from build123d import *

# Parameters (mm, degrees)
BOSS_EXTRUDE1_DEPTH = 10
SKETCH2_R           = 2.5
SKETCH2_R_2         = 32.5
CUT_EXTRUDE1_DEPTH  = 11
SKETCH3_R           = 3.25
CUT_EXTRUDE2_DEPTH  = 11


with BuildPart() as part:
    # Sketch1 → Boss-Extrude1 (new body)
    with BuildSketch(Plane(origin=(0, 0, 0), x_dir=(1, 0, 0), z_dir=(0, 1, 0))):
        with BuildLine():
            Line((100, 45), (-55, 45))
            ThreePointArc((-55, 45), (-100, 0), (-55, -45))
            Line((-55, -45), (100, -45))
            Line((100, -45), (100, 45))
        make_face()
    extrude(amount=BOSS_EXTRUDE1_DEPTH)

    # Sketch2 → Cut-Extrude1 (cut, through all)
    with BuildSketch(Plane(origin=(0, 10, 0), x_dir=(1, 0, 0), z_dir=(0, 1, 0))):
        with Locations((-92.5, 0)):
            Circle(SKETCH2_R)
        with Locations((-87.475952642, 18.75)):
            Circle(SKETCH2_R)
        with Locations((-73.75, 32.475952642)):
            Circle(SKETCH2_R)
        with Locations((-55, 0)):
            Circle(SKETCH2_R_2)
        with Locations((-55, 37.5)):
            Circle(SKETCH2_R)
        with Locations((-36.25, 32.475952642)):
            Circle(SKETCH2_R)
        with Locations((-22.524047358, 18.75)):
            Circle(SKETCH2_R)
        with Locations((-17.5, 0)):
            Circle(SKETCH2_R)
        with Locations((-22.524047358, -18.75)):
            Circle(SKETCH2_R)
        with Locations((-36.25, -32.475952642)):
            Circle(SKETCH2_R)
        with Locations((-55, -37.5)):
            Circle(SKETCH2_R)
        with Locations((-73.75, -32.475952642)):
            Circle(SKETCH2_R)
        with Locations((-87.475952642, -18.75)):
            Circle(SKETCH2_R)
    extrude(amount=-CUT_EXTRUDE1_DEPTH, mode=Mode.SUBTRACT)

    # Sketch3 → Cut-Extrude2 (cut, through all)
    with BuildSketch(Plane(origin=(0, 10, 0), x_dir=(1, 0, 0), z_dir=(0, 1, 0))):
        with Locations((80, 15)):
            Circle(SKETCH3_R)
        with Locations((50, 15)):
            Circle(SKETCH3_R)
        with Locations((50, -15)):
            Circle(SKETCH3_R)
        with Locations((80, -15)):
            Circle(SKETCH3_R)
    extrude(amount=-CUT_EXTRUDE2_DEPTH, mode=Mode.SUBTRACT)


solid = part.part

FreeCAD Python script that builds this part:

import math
import FreeCAD as App
import Part
import Sketcher
Q = App.Units.Quantity

doc = App.newDocument("Part")
body = doc.addObject("PartDesign::Body", "Body")

sketch1 = body.newObject("Sketcher::SketchObject", "Sketch")
sketch1.AttachmentSupport = (doc.getObject("XZ_Plane"), [""])
sketch1.MapMode = "FlatFace"
sketch1.addGeometry([
    Part.LineSegment(App.Vector(100, -45, 0), App.Vector(-55, -45, 0)),
    Part.ArcOfCircle(Part.Circle(App.Vector(-55, 0, 0), App.Vector(0, 0, 1), 45), math.radians(90), math.radians(270)),
    Part.LineSegment(App.Vector(-55, 45, 0), App.Vector(100, 45, 0)),
    Part.LineSegment(App.Vector(100, 45, 0), App.Vector(100, -45, 0)),
], False)
sketch1.addConstraint([
    Sketcher.Constraint("Tangent", 0, 2, 1, 2),
    Sketcher.Constraint("Tangent", 1, 1, 2, 1),
    Sketcher.Constraint("Coincident", 2, 2, 3, 1),
    Sketcher.Constraint("Coincident", 3, 2, 0, 1),
    Sketcher.Constraint("Horizontal", 0),
    Sketcher.Constraint("Horizontal", 2),
    Sketcher.Constraint("Vertical", 3),
    Sketcher.Constraint("PointOnObject", 1, 3, -1),
    Sketcher.Constraint("Radius", 1, Q("45 mm")),
    Sketcher.Constraint("DistanceX", 0, 2, 0, 1, Q("155 mm")),
    Sketcher.Constraint("DistanceX", 1, 3, -1, 1, Q("55 mm")),
])
pad1 = body.newObject("PartDesign::Pad", "Pad")
pad1.Profile = sketch1
pad1.Length = 10
pad1.Reversed = True

sketch2 = body.newObject("Sketcher::SketchObject", "Sketch001")
sketch2.AttachmentSupport = (doc.getObject("XZ_Plane"), [""])
sketch2.MapMode = "FlatFace"
sketch2.AttachmentOffset = App.Placement(App.Vector(0, 0, -10), App.Rotation())
sketch2.addGeometry([
    Part.Circle(App.Vector(-92.5, 0, 0), App.Vector(0, 0, 1), 2.5),
    Part.Circle(App.Vector(-87.475953, -18.75, 0), App.Vector(0, 0, 1), 2.5),
    Part.Circle(App.Vector(-73.75, -32.475953, 0), App.Vector(0, 0, 1), 2.5),
    Part.Circle(App.Vector(-55, 0, 0), App.Vector(0, 0, 1), 32.5),
    Part.Circle(App.Vector(-55, -37.5, 0), App.Vector(0, 0, 1), 2.5),
    Part.Circle(App.Vector(-36.25, -32.475953, 0), App.Vector(0, 0, 1), 2.5),
    Part.Circle(App.Vector(-22.524047, -18.75, 0), App.Vector(0, 0, 1), 2.5),
    Part.Circle(App.Vector(-17.5, 0, 0), App.Vector(0, 0, 1), 2.5),
    Part.Circle(App.Vector(-22.524047, 18.75, 0), App.Vector(0, 0, 1), 2.5),
    Part.Circle(App.Vector(-36.25, 32.475953, 0), App.Vector(0, 0, 1), 2.5),
    Part.Circle(App.Vector(-55, 37.5, 0), App.Vector(0, 0, 1), 2.5),
    Part.Circle(App.Vector(-73.75, 32.475953, 0), App.Vector(0, 0, 1), 2.5),
    Part.Circle(App.Vector(-87.475953, 18.75, 0), App.Vector(0, 0, 1), 2.5),
], False)
sketch2.addConstraint([
    Sketcher.Constraint("Equal", 0, 1),
    Sketcher.Constraint("Equal", 1, 2),
    Sketcher.Constraint("Equal", 2, 4),
    Sketcher.Constraint("Equal", 4, 5),
    Sketcher.Constraint("Equal", 5, 6),
    Sketcher.Constraint("Equal", 6, 7),
    Sketcher.Constraint("Equal", 7, 8),
    Sketcher.Constraint("Equal", 8, 9),
    Sketcher.Constraint("Equal", 9, 10),
    Sketcher.Constraint("Equal", 10, 11),
    Sketcher.Constraint("Equal", 11, 12),
    Sketcher.Constraint("Symmetric", 6, 3, 8, 3, -1),
    Sketcher.Constraint("Symmetric", 5, 3, 9, 3, -1),
    Sketcher.Constraint("Symmetric", 4, 3, 10, 3, -1),
    Sketcher.Constraint("Symmetric", 2, 3, 11, 3, -1),
    Sketcher.Constraint("Symmetric", 1, 3, 12, 3, -1),
    Sketcher.Constraint("PointOnObject", 0, 3, -1),
    Sketcher.Constraint("PointOnObject", 3, 3, -1),
    Sketcher.Constraint("PointOnObject", 7, 3, -1),
    Sketcher.Constraint("Horizontal", 2, 3, 5, 3),
    Sketcher.Constraint("Horizontal", 1, 3, 6, 3),
    Sketcher.Constraint("Vertical", 3, 3, 4, 3),
    Sketcher.Constraint("Diameter", 0, Q("5 mm")),
    Sketcher.Constraint("Diameter", 3, Q("65 mm")),
    Sketcher.Constraint("DistanceX", 3, 3, -1, 1, Q("55 mm")),
    Sketcher.Constraint("DistanceX", 0, 3, -1, 1, Q("92.5 mm")),
    Sketcher.Constraint("DistanceY", 4, 3, -1, 1, Q("37.5 mm")),
    Sketcher.Constraint("DistanceX", 7, 3, -1, 1, Q("17.5 mm")),
    Sketcher.Constraint("DistanceX", 2, 3, 5, 3, Q("37.5 mm")),
    Sketcher.Constraint("DistanceY", 6, 3, 8, 3, Q("37.5 mm")),
    Sketcher.Constraint("DistanceX", 2, 3, -1, 1, Q("73.75 mm")),
    Sketcher.Constraint("DistanceX", 1, 3, -1, 1, Q("87.475953 mm")),
    Sketcher.Constraint("DistanceY", 2, 3, -1, 1, Q("32.475953 mm")),
    Sketcher.Constraint("DistanceX", 6, 3, -1, 1, Q("22.524047 mm")),
])
pocket1 = body.newObject("PartDesign::Pocket", "Pocket")
pocket1.Profile = sketch2
pocket1.Type = "ThroughAll"
pocket1.Reversed = True

sketch3 = body.newObject("Sketcher::SketchObject", "Sketch002")
sketch3.AttachmentSupport = (doc.getObject("XZ_Plane"), [""])
sketch3.MapMode = "FlatFace"
sketch3.AttachmentOffset = App.Placement(App.Vector(0, 0, -10), App.Rotation())
sketch3.addGeometry([
    Part.Circle(App.Vector(80, -15, 0), App.Vector(0, 0, 1), 3.25),
    Part.Circle(App.Vector(50, -15, 0), App.Vector(0, 0, 1), 3.25),
    Part.Circle(App.Vector(50, 15, 0), App.Vector(0, 0, 1), 3.25),
    Part.Circle(App.Vector(80, 15, 0), App.Vector(0, 0, 1), 3.25),
], False)
sketch3.addConstraint([
    Sketcher.Constraint("Equal", 0, 1),
    Sketcher.Constraint("Equal", 1, 2),
    Sketcher.Constraint("Equal", 2, 3),
    Sketcher.Constraint("Symmetric", 1, 3, 2, 3, -1),
    Sketcher.Constraint("Symmetric", 0, 3, 3, 3, -1),
    Sketcher.Constraint("Horizontal", 0, 3, 1, 3),
    Sketcher.Constraint("Diameter", 0, Q("6.5 mm")),
    Sketcher.Constraint("DistanceX", -1, 1, 0, 3, Q("80 mm")),
    Sketcher.Constraint("DistanceY", 0, 3, -1, 1, Q("15 mm")),
    Sketcher.Constraint("DistanceX", -1, 1, 1, 3, Q("50 mm")),
])
pocket2 = body.newObject("PartDesign::Pocket", "Pocket001")
pocket2.Profile = sketch3
pocket2.Type = "ThroughAll"
pocket2.Reversed = True

doc.recompute()
